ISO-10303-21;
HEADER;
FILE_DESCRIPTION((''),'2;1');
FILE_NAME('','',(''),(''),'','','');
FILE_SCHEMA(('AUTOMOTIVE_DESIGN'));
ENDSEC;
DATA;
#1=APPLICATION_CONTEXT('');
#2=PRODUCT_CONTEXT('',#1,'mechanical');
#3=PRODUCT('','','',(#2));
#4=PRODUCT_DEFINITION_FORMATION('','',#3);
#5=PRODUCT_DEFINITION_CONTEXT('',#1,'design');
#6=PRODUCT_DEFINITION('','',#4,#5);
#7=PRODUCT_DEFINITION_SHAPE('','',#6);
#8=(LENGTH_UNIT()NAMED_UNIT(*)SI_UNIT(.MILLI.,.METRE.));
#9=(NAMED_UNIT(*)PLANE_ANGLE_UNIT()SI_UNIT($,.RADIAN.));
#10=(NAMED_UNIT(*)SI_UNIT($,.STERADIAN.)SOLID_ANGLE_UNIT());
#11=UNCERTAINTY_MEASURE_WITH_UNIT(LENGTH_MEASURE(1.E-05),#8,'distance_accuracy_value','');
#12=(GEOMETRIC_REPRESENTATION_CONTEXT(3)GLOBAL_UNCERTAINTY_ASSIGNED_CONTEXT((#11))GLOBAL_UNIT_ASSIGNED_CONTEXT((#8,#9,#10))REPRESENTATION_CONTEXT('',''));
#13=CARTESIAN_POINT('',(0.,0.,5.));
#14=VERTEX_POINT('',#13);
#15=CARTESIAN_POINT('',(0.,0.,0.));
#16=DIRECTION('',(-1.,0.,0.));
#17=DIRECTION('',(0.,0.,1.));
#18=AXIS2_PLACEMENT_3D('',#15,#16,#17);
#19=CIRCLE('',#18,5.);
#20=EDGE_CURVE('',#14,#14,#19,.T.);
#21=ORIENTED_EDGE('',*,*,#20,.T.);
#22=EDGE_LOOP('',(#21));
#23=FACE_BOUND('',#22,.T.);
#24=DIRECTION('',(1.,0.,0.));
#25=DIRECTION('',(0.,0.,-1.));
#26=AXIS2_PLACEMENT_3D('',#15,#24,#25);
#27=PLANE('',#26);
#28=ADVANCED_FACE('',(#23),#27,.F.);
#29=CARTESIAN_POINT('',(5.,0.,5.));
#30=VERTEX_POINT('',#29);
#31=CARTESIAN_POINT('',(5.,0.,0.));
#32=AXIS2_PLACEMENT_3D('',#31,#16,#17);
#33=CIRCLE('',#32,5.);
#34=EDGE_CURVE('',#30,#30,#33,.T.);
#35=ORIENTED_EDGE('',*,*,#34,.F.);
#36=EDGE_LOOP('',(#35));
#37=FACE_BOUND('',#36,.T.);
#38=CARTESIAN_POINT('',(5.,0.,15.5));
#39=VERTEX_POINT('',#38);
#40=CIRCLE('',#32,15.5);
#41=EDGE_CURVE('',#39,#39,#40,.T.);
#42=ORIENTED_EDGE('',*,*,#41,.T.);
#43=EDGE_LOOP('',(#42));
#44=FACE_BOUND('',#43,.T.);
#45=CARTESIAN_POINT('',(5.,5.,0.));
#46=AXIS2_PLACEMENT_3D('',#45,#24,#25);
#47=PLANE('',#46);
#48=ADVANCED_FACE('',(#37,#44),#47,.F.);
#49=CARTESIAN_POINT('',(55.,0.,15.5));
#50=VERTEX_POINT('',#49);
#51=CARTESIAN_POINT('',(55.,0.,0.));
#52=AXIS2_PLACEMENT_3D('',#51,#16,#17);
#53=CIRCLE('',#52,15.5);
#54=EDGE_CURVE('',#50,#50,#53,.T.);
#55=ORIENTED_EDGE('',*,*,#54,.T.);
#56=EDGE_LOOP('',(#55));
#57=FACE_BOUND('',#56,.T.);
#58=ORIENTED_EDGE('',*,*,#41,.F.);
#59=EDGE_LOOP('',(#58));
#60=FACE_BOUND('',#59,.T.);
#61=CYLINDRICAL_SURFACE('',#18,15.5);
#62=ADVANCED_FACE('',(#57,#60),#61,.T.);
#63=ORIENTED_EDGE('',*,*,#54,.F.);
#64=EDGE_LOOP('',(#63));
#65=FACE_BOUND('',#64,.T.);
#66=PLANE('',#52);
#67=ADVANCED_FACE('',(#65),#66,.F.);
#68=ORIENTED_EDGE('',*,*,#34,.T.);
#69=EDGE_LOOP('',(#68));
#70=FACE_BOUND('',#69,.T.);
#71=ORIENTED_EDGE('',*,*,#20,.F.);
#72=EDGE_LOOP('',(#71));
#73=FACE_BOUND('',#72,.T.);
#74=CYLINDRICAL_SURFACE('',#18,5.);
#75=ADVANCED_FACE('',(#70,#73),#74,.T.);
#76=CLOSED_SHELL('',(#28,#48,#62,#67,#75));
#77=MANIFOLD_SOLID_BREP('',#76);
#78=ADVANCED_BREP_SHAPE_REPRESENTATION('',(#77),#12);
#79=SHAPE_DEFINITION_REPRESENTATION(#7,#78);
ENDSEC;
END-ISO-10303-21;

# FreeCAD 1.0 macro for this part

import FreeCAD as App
import Part
import Sketcher
from FreeCAD import Vector
Q = App.Units.Quantity


def add_polygon(sketch, points):
    """Adds a closed chain of lines whose ends are joined by coincident constraints."""
    first, n = sketch.GeometryCount, len(points)
    for a, b in zip(points, points[1:] + points[:1]):
        sketch.addGeometry(Part.LineSegment(App.Vector(*a, 0), App.Vector(*b, 0)), False)
    for i in range(n):
        sketch.addConstraint(Sketcher.Constraint("Coincident", first + i, 2, first + (i + 1) % n, 1))

doc = App.newDocument("Part")
body = doc.addObject("PartDesign::Body", "Body")

sketch1 = body.newObject("Sketcher::SketchObject", "Sketch")
sketch1.AttachmentSupport = (doc.getObject("XY_Plane"), [""])
sketch1.MapMode = "FlatFace"
add_polygon(sketch1, [(0, 0), (55, 0), (55, 16), (5, 16), (5, 5), (0, 5)])
sketch1.addConstraint(Sketcher.Constraint("Horizontal", 0))
sketch1.addConstraint(Sketcher.Constraint("Vertical", 1))
sketch1.addConstraint(Sketcher.Constraint("Horizontal", 2))
sketch1.addConstraint(Sketcher.Constraint("Vertical", 3))
sketch1.addConstraint(Sketcher.Constraint("Horizontal", 4))
sketch1.addConstraint(Sketcher.Constraint("Vertical", 5))
sketch1.addConstraint(Sketcher.Constraint("Coincident", 5, 2, -1, 1))
sketch1.addConstraint(Sketcher.Constraint("Equal", 4, 5))
sketch1.addConstraint(Sketcher.Constraint("DistanceX", 0, 1, 0, 2, Q("55 mm")))
sketch1.addConstraint(Sketcher.Constraint("DistanceX", 2, 2, 2, 1, Q("50 mm")))
sketch1.addConstraint(Sketcher.Constraint("DistanceY", 1, 1, 1, 2, Q("15.5 mm")))
revolution = body.newObject("PartDesign::Revolution", "Revolution")
revolution.Profile = sketch1
revolution.ReferenceAxis = (sketch1, ["H_Axis"])
revolution.Angle = 360

doc.recompute()
